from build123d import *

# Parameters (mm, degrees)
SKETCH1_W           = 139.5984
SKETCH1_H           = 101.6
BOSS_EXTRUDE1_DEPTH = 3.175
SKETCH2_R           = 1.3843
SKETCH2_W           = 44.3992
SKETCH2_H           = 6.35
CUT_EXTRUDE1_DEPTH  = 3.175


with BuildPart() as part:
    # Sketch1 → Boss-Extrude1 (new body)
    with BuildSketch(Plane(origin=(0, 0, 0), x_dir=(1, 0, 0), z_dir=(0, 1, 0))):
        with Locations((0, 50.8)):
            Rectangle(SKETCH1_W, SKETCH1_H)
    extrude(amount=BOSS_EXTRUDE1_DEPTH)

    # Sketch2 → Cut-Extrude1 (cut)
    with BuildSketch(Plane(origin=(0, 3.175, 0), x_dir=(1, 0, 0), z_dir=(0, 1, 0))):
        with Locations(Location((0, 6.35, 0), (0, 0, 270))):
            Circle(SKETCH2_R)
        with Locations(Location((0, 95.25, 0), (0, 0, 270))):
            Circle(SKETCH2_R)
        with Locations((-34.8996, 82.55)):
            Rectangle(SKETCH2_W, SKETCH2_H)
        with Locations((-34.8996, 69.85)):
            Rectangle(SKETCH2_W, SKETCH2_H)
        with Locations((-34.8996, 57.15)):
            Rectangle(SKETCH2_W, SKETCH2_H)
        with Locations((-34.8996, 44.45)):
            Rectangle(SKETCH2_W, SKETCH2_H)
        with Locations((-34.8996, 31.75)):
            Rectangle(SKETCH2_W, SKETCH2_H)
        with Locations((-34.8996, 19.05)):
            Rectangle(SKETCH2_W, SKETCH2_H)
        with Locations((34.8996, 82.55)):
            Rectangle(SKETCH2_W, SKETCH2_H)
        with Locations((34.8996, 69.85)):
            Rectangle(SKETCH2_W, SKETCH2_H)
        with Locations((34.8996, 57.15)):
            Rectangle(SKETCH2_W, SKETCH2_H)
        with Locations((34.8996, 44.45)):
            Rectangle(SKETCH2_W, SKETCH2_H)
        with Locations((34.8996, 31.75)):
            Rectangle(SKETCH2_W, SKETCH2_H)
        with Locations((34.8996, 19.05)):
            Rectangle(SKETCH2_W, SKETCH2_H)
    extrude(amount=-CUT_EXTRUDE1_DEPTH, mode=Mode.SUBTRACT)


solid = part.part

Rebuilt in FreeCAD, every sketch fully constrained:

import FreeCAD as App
import Part
import Sketcher

V = App.Vector
Q = App.Units.Quantity

doc = App.newDocument("Part")
body = doc.addObject("PartDesign::Body", "Body")

sketch1 = body.newObject("Sketcher::SketchObject", "Sketch")
sketch1.AttachmentSupport = (doc.getObject("XZ_Plane"), [""])
sketch1.MapMode = "FlatFace"
sketch1.addGeometry(Part.LineSegment(V(-69.7992, -101.6, 0), V(-69.7992, 0, 0)), False)
sketch1.addGeometry(Part.LineSegment(V(-69.7992, 0, 0), V(69.7992, 0, 0)), False)
sketch1.addGeometry(Part.LineSegment(V(69.7992, 0, 0), V(69.7992, -101.6, 0)), False)
sketch1.addGeometry(Part.LineSegment(V(69.7992, -101.6, 0), V(-69.7992, -101.6, 0)), False)
sketch1.addConstraint(Sketcher.Constraint("Coincident", 0, 2, 1, 1))
sketch1.addConstraint(Sketcher.Constraint("Coincident", 1, 2, 2, 1))
sketch1.addConstraint(Sketcher.Constraint("Coincident", 2, 2, 3, 1))
sketch1.addConstraint(Sketcher.Constraint("Coincident", 3, 2, 0, 1))
sketch1.addConstraint(Sketcher.Constraint("Vertical", 0))
sketch1.addConstraint(Sketcher.Constraint("Horizontal", 1))
sketch1.addConstraint(Sketcher.Constraint("Vertical", 2))
sketch1.addConstraint(Sketcher.Constraint("Horizontal", 3))
sketch1.addConstraint(Sketcher.Constraint("Symmetric", 0, 2, 1, 2, -1, 1))
sketch1.addConstraint(Sketcher.Constraint("DistanceY", 0, 1, 0, 2, Q("4 in")))
sketch1.addConstraint(Sketcher.Constraint("DistanceX", 1, 1, 1, 2, Q("5.496 in")))
pad1 = body.newObject("PartDesign::Pad", "Pad")
pad1.Profile = sketch1
pad1.Length = Q("0.125 in")
pad1.Reversed = True

sketch2 = body.newObject("Sketcher::SketchObject", "Sketch001")
sketch2.AttachmentSupport = (doc.getObject("XZ_Plane"), [""])
sketch2.MapMode = "FlatFace"
sketch2.AttachmentOffset = App.Placement(V(0, 0, -0.125 * 25.4), App.Rotation())
sketch2.addGeometry(Part.Circle(V(0, -6.35, 0), V(0, 0, 1), 1.3843), False)
sketch2.addGeometry(Part.Circle(V(0, -95.25, 0), V(0, 0, 1), 1.3843), False)
sketch2.addGeometry(Part.LineSegment(V(-57.0992, -85.725, 0), V(-57.0992, -79.375, 0)), False)
sketch2.addGeometry(Part.LineSegment(V(-57.0992, -79.375, 0), V(-12.7, -79.375, 0)), False)
sketch2.addGeometry(Part.LineSegment(V(-12.7, -79.375, 0), V(-12.7, -85.725, 0)), False)
sketch2.addGeometry(Part.LineSegment(V(-12.7, -85.725, 0), V(-57.0992, -85.725, 0)), False)
sketch2.addGeometry(Part.LineSegment(V(-57.0992, -73.025, 0), V(-57.0992, -66.675, 0)), False)
sketch2.addGeometry(Part.LineSegment(V(-57.0992, -66.675, 0), V(-12.7, -66.675, 0)), False)
sketch2.addGeometry(Part.LineSegment(V(-12.7, -66.675, 0), V(-12.7, -73.025, 0)), False)
sketch2.addGeometry(Part.LineSegment(V(-12.7, -73.025, 0), V(-57.0992, -73.025, 0)), False)
sketch2.addGeometry(Part.LineSegment(V(-57.0992, -60.325, 0), V(-57.0992, -53.975, 0)), False)
sketch2.addGeometry(Part.LineSegment(V(-57.0992, -53.975, 0), V(-12.7, -53.975, 0)), False)
sketch2.addGeometry(Part.LineSegment(V(-12.7, -53.975, 0), V(-12.7, -60.325, 0)), False)
sketch2.addGeometry(Part.LineSegment(V(-12.7, -60.325, 0), V(-57.0992, -60.325, 0)), False)
sketch2.addGeometry(Part.LineSegment(V(-57.0992, -47.625, 0), V(-57.0992, -41.275, 0)), False)
sketch2.addGeometry(Part.LineSegment(V(-57.0992, -41.275, 0), V(-12.7, -41.275, 0)), False)
sketch2.addGeometry(Part.LineSegment(V(-12.7, -41.275, 0), V(-12.7, -47.625, 0)), False)
sketch2.addGeometry(Part.LineSegment(V(-12.7, -47.625, 0), V(-57.0992, -47.625, 0)), False)
sketch2.addGeometry(Part.LineSegment(V(-57.0992, -34.925, 0), V(-57.0992, -28.575, 0)), False)
sketch2.addGeometry(Part.LineSegment(V(-57.0992, -28.575, 0), V(-12.7, -28.575, 0)), False)
sketch2.addGeometry(Part.LineSegment(V(-12.7, -28.575, 0), V(-12.7, -34.925, 0)), False)
sketch2.addGeometry(Part.LineSegment(V(-12.7, -34.925, 0), V(-57.0992, -34.925, 0)), False)
sketch2.addGeometry(Part.LineSegment(V(-57.0992, -22.225, 0), V(-57.0992, -15.875, 0)), False)
sketch2.addGeometry(Part.LineSegment(V(-57.0992, -15.875, 0), V(-12.7, -15.875, 0)), False)
sketch2.addGeometry(Part.LineSegment(V(-12.7, -15.875, 0), V(-12.7, -22.225, 0)), False)
sketch2.addGeometry(Part.LineSegment(V(-12.7, -22.225, 0), V(-57.0992, -22.225, 0)), False)
sketch2.addGeometry(Part.LineSegment(V(12.7, -85.725, 0), V(12.7, -79.375, 0)), False)
sketch2.addGeometry(Part.LineSegment(V(12.7, -79.375, 0), V(57.0992, -79.375, 0)), False)
sketch2.addGeometry(Part.LineSegment(V(57.0992, -79.375, 0), V(57.0992, -85.725, 0)), False)
sketch2.addGeometry(Part.LineSegment(V(57.0992, -85.725, 0), V(12.7, -85.725, 0)), False)
sketch2.addGeometry(Part.LineSegment(V(12.7, -73.025, 0), V(12.7, -66.675, 0)), False)
sketch2.addGeometry(Part.LineSegment(V(12.7, -66.675, 0), V(57.0992, -66.675, 0)), False)
sketch2.addGeometry(Part.LineSegment(V(57.0992, -66.675, 0), V(57.0992, -73.025, 0)), False)
sketch2.addGeometry(Part.LineSegment(V(57.0992, -73.025, 0), V(12.7, -73.025, 0)), False)
sketch2.addGeometry(Part.LineSegment(V(12.7, -60.325, 0), V(12.7, -53.975, 0)), False)
sketch2.addGeometry(Part.LineSegment(V(12.7, -53.975, 0), V(57.0992, -53.975, 0)), False)
sketch2.addGeometry(Part.LineSegment(V(57.0992, -53.975, 0), V(57.0992, -60.325, 0)), False)
sketch2.addGeometry(Part.LineSegment(V(57.0992, -60.325, 0), V(12.7, -60.325, 0)), False)
sketch2.addGeometry(Part.LineSegment(V(12.7, -47.625, 0), V(12.7, -41.275, 0)), False)
sketch2.addGeometry(Part.LineSegment(V(12.7, -41.275, 0), V(57.0992, -41.275, 0)), False)
sketch2.addGeometry(Part.LineSegment(V(57.0992, -41.275, 0), V(57.0992, -47.625, 0)), False)
sketch2.addGeometry(Part.LineSegment(V(57.0992, -47.625, 0), V(12.7, -47.625, 0)), False)
sketch2.addGeometry(Part.LineSegment(V(12.7, -34.925, 0), V(12.7, -28.575, 0)), False)
sketch2.addGeometry(Part.LineSegment(V(12.7, -28.575, 0), V(57.0992, -28.575, 0)), False)
sketch2.addGeometry(Part.LineSegment(V(57.0992, -28.575, 0), V(57.0992, -34.925, 0)), False)
sketch2.addGeometry(Part.LineSegment(V(57.0992, -34.925, 0), V(12.7, -34.925, 0)), False)
sketch2.addGeometry(Part.LineSegment(V(12.7, -22.225, 0), V(12.7, -15.875, 0)), False)
sketch2.addGeometry(Part.LineSegment(V(12.7, -15.875, 0), V(57.0992, -15.875, 0)), False)
sketch2.addGeometry(Part.LineSegment(V(57.0992, -15.875, 0), V(57.0992, -22.225, 0)), False)
sketch2.addGeometry(Part.LineSegment(V(57.0992, -22.225, 0), V(12.7, -22.225, 0)), False)
sketch2.addConstraint(Sketcher.Constraint("Coincident", 2, 2, 3, 1))
sketch2.addConstraint(Sketcher.Constraint("Coincident", 3, 2, 4, 1))
sketch2.addConstraint(Sketcher.Constraint("Coincident", 4, 2, 5, 1))
sketch2.addConstraint(Sketcher.Constraint("Coincident", 5, 2, 2, 1))
sketch2.addConstraint(Sketcher.Constraint("Coincident", 6, 2, 7, 1))
sketch2.addConstraint(Sketcher.Constraint("Coincident", 7, 2, 8, 1))
sketch2.addConstraint(Sketcher.Constraint("Coincident", 8, 2, 9, 1))
sketch2.addConstraint(Sketcher.Constraint("Coincident", 9, 2, 6, 1))
sketch2.addConstraint(Sketcher.Constraint("Coincident", 10, 2, 11, 1))
sketch2.addConstraint(Sketcher.Constraint("Coincident", 11, 2, 12, 1))
sketch2.addConstraint(Sketcher.Constraint("Coincident", 12, 2, 13, 1))
sketch2.addConstraint(Sketcher.Constraint("Coincident", 13, 2, 10, 1))
sketch2.addConstraint(Sketcher.Constraint("Coincident", 14, 2, 15, 1))
sketch2.addConstraint(Sketcher.Constraint("Coincident", 15, 2, 16, 1))
sketch2.addConstraint(Sketcher.Constraint("Coincident", 16, 2, 17, 1))
sketch2.addConstraint(Sketcher.Constraint("Coincident", 17, 2, 14, 1))
sketch2.addConstraint(Sketcher.Constraint("Coincident", 18, 2, 19, 1))
sketch2.addConstraint(Sketcher.Constraint("Coincident", 19, 2, 20, 1))
sketch2.addConstraint(Sketcher.Constraint("Coincident", 20, 2, 21, 1))
sketch2.addConstraint(Sketcher.Constraint("Coincident", 21, 2, 18, 1))
sketch2.addConstraint(Sketcher.Constraint("Coincident", 22, 2, 23, 1))
sketch2.addConstraint(Sketcher.Constraint("Coincident", 23, 2, 24, 1))
sketch2.addConstraint(Sketcher.Constraint("Coincident", 24, 2, 25, 1))
sketch2.addConstraint(Sketcher.Constraint("Coincident", 25, 2, 22, 1))
sketch2.addConstraint(Sketcher.Constraint("Coincident", 26, 2, 27, 1))
sketch2.addConstraint(Sketcher.Constraint("Coincident", 27, 2, 28, 1))
sketch2.addConstraint(Sketcher.Constraint("Coincident", 28, 2, 29, 1))
sketch2.addConstraint(Sketcher.Constraint("Coincident", 29, 2, 26, 1))
sketch2.addConstraint(Sketcher.Constraint("Coincident", 30, 2, 31, 1))
sketch2.addConstraint(Sketcher.Constraint("Coincident", 31, 2, 32, 1))
sketch2.addConstraint(Sketcher.Constraint("Coincident", 32, 2, 33, 1))
sketch2.addConstraint(Sketcher.Constraint("Coincident", 33, 2, 30, 1))
sketch2.addConstraint(Sketcher.Constraint("Coincident", 34, 2, 35, 1))
sketch2.addConstraint(Sketcher.Constraint("Coincident", 35, 2, 36, 1))
sketch2.addConstraint(Sketcher.Constraint("Coincident", 36, 2, 37, 1))
sketch2.addConstraint(Sketcher.Constraint("Coincident", 37, 2, 34, 1))
sketch2.addConstraint(Sketcher.Constraint("Coincident", 38, 2, 39, 1))
sketch2.addConstraint(Sketcher.Constraint("Coincident", 39, 2, 40, 1))
sketch2.addConstraint(Sketcher.Constraint("Coincident", 40, 2, 41, 1))
sketch2.addConstraint(Sketcher.Constraint("Coincident", 41, 2, 38, 1))
sketch2.addConstraint(Sketcher.Constraint("Coincident", 42, 2, 43, 1))
sketch2.addConstraint(Sketcher.Constraint("Coincident", 43, 2, 44, 1))
sketch2.addConstraint(Sketcher.Constraint("Coincident", 44, 2, 45, 1))
sketch2.addConstraint(Sketcher.Constraint("Coincident", 45, 2, 42, 1))
sketch2.addConstraint(Sketcher.Constraint("Coincident", 46, 2, 47, 1))
sketch2.addConstraint(Sketcher.Constraint("Coincident", 47, 2, 48, 1))
sketch2.addConstraint(Sketcher.Constraint("Coincident", 48, 2, 49, 1))
sketch2.addConstraint(Sketcher.Constraint("Coincident", 49, 2, 46, 1))
sketch2.addConstraint(Sketcher.Constraint("Vertical", 2))
sketch2.addConstraint(Sketcher.Constraint("Horizontal", 3))
sketch2.addConstraint(Sketcher.Constraint("Vertical", 4))
sketch2.addConstraint(Sketcher.Constraint("Horizontal", 5))
sketch2.addConstraint(Sketcher.Constraint("Vertical", 6))
sketch2.addConstraint(Sketcher.Constraint("Horizontal", 7))
sketch2.addConstraint(Sketcher.Constraint("Vertical", 8))
sketch2.addConstraint(Sketcher.Constraint("Horizontal", 9))
sketch2.addConstraint(Sketcher.Constraint("Vertical", 10))
sketch2.addConstraint(Sketcher.Constraint("Horizontal", 11))
sketch2.addConstraint(Sketcher.Constraint("Vertical", 12))
sketch2.addConstraint(Sketcher.Constraint("Horizontal", 13))
sketch2.addConstraint(Sketcher.Constraint("Vertical", 14))
sketch2.addConstraint(Sketcher.Constraint("Horizontal", 15))
sketch2.addConstraint(Sketcher.Constraint("Vertical", 16))
sketch2.addConstraint(Sketcher.Constraint("Horizontal", 17))
sketch2.addConstraint(Sketcher.Constraint("Vertical", 18))
sketch2.addConstraint(Sketcher.Constraint("Horizontal", 19))
sketch2.addConstraint(Sketcher.Constraint("Vertical", 20))
sketch2.addConstraint(Sketcher.Constraint("Horizontal", 21))
sketch2.addConstraint(Sketcher.Constraint("Vertical", 22))
sketch2.addConstraint(Sketcher.Constraint("Horizontal", 23))
sketch2.addConstraint(Sketcher.Constraint("Vertical", 24))
sketch2.addConstraint(Sketcher.Constraint("Horizontal", 25))
sketch2.addConstraint(Sketcher.Constraint("Vertical", 26))
sketch2.addConstraint(Sketcher.Constraint("Horizontal", 27))
sketch2.addConstraint(Sketcher.Constraint("Vertical", 28))
sketch2.addConstraint(Sketcher.Constraint("Horizontal", 29))
sketch2.addConstraint(Sketcher.Constraint("Vertical", 30))
sketch2.addConstraint(Sketcher.Constraint("Horizontal", 31))
sketch2.addConstraint(Sketcher.Constraint("Vertical", 32))
sketch2.addConstraint(Sketcher.Constraint("Horizontal", 33))
sketch2.addConstraint(Sketcher.Constraint("Vertical", 34))
sketch2.addConstraint(Sketcher.Constraint("Horizontal", 35))
sketch2.addConstraint(Sketcher.Constraint("Vertical", 36))
sketch2.addConstraint(Sketcher.Constraint("Horizontal", 37))
sketch2.addConstraint(Sketcher.Constraint("Vertical", 38))
sketch2.addConstraint(Sketcher.Constraint("Horizontal", 39))
sketch2.addConstraint(Sketcher.Constraint("Vertical", 40))
sketch2.addConstraint(Sketcher.Constraint("Horizontal", 41))
sketch2.addConstraint(Sketcher.Constraint("Vertical", 42))
sketch2.addConstraint(Sketcher.Constraint("Horizontal", 43))
sketch2.addConstraint(Sketcher.Constraint("Vertical", 44))
sketch2.addConstraint(Sketcher.Constraint("Horizontal", 45))
sketch2.addConstraint(Sketcher.Constraint("Vertical", 46))
sketch2.addConstraint(Sketcher.Constraint("Horizontal", 47))
sketch2.addConstraint(Sketcher.Constraint("Vertical", 48))
sketch2.addConstraint(Sketcher.Constraint("Horizontal", 49))
sketch2.addConstraint(Sketcher.Constraint("Equal", 0, 1))
sketch2.addConstraint(Sketcher.Constraint("Symmetric", 3, 2, 26, 2, -2))
sketch2.addConstraint(Sketcher.Constraint("Symmetric", 5, 2, 28, 2, -2))
sketch2.addConstraint(Sketcher.Constraint("Symmetric", 7, 2, 30, 2, -2))
sketch2.addConstraint(Sketcher.Constraint("Symmetric", 9, 2, 32, 2, -2))
sketch2.addConstraint(Sketcher.Constraint("Symmetric", 11, 2, 34, 2, -2))
sketch2.addConstraint(Sketcher.Constraint("Symmetric", 13, 2, 36, 2, -2))
sketch2.addConstraint(Sketcher.Constraint("Symmetric", 15, 2, 38, 2, -2))
sketch2.addConstraint(Sketcher.Constraint("Symmetric", 17, 2, 40, 2, -2))
sketch2.addConstraint(Sketcher.Constraint("Symmetric", 19, 2, 42, 2, -2))
sketch2.addConstraint(Sketcher.Constraint("Symmetric", 21, 2, 44, 2, -2))
sketch2.addConstraint(Sketcher.Constraint("Symmetric", 23, 2, 46, 2, -2))
sketch2.addConstraint(Sketcher.Constraint("Symmetric", 25, 2, 48, 2, -2))
sketch2.addConstraint(Sketcher.Constraint("PointOnObject", 0, 3, -2))
sketch2.addConstraint(Sketcher.Constraint("PointOnObject", 1, 3, -2))
sketch2.addConstraint(Sketcher.Constraint("Vertical", 5, 2, 6, 2))
sketch2.addConstraint(Sketcher.Constraint("Vertical", 4, 2, 7, 2))
sketch2.addConstraint(Sketcher.Constraint("Vertical", 9, 2, 10, 2))
sketch2.addConstraint(Sketcher.Constraint("Vertical", 8, 2, 11, 2))
sketch2.addConstraint(Sketcher.Constraint("Vertical", 13, 2, 14, 2))
sketch2.addConstraint(Sketcher.Constraint("Vertical", 12, 2, 15, 2))
sketch2.addConstraint(Sketcher.Constraint("Vertical", 17, 2, 18, 2))
sketch2.addConstraint(Sketcher.Constraint("Vertical", 16, 2, 19, 2))
sketch2.addConstraint(Sketcher.Constraint("Vertical", 21, 2, 22, 2))
sketch2.addConstraint(Sketcher.Constraint("Vertical", 20, 2, 23, 2))
sketch2.addConstraint(Sketcher.Constraint("Equal", 4, 6))
sketch2.addConstraint(Sketcher.Constraint("Equal", 8, 10))
sketch2.addConstraint(Sketcher.Constraint("Equal", 12, 14))
sketch2.addConstraint(Sketcher.Constraint("Equal", 16, 18))
sketch2.addConstraint(Sketcher.Constraint("Equal", 20, 22))
sketch2.addConstraint(Sketcher.Constraint("Diameter", 0, Q("0.109 in")))
sketch2.addConstraint(Sketcher.Constraint("DistanceY", 2, 2, 10, 2, Q("1 in")))
sketch2.addConstraint(Sketcher.Constraint("DistanceY", 6, 2, 14, 2, Q("1 in")))
sketch2.addConstraint(Sketcher.Constraint("DistanceY", 10, 2, 18, 2, Q("1 in")))
sketch2.addConstraint(Sketcher.Constraint("DistanceY", 14, 2, 22, 2, Q("1 in")))
sketch2.addConstraint(Sketcher.Constraint("DistanceX", 3, 2, 26, 2, Q("1 in")))
sketch2.addConstraint(Sketcher.Constraint("DistanceY", 2, 1, 2, 2, Q("0.25 in")))
sketch2.addConstraint(Sketcher.Constraint("DistanceY", 1, 3, 0, 3, Q("3.5 in")))
sketch2.addConstraint(Sketcher.Constraint("DistanceY", 2, 2, 6, 2, Q("0.5 in")))
sketch2.addConstraint(Sketcher.Constraint("DistanceX", 3, 1, 3, 2, Q("1.748 in")))
sketch2.addConstraint(Sketcher.Constraint("DistanceY", 0, 3, -1, 1, Q("0.25 in")))
sketch2.addConstraint(Sketcher.Constraint("DistanceY", 2, 2, -1, 1, Q("3.125 in")))
pocket1 = body.newObject("PartDesign::Pocket", "Pocket")
pocket1.Profile = sketch2
pocket1.Length = Q("0.125 in")
pocket1.Reversed = True

doc.recompute()
